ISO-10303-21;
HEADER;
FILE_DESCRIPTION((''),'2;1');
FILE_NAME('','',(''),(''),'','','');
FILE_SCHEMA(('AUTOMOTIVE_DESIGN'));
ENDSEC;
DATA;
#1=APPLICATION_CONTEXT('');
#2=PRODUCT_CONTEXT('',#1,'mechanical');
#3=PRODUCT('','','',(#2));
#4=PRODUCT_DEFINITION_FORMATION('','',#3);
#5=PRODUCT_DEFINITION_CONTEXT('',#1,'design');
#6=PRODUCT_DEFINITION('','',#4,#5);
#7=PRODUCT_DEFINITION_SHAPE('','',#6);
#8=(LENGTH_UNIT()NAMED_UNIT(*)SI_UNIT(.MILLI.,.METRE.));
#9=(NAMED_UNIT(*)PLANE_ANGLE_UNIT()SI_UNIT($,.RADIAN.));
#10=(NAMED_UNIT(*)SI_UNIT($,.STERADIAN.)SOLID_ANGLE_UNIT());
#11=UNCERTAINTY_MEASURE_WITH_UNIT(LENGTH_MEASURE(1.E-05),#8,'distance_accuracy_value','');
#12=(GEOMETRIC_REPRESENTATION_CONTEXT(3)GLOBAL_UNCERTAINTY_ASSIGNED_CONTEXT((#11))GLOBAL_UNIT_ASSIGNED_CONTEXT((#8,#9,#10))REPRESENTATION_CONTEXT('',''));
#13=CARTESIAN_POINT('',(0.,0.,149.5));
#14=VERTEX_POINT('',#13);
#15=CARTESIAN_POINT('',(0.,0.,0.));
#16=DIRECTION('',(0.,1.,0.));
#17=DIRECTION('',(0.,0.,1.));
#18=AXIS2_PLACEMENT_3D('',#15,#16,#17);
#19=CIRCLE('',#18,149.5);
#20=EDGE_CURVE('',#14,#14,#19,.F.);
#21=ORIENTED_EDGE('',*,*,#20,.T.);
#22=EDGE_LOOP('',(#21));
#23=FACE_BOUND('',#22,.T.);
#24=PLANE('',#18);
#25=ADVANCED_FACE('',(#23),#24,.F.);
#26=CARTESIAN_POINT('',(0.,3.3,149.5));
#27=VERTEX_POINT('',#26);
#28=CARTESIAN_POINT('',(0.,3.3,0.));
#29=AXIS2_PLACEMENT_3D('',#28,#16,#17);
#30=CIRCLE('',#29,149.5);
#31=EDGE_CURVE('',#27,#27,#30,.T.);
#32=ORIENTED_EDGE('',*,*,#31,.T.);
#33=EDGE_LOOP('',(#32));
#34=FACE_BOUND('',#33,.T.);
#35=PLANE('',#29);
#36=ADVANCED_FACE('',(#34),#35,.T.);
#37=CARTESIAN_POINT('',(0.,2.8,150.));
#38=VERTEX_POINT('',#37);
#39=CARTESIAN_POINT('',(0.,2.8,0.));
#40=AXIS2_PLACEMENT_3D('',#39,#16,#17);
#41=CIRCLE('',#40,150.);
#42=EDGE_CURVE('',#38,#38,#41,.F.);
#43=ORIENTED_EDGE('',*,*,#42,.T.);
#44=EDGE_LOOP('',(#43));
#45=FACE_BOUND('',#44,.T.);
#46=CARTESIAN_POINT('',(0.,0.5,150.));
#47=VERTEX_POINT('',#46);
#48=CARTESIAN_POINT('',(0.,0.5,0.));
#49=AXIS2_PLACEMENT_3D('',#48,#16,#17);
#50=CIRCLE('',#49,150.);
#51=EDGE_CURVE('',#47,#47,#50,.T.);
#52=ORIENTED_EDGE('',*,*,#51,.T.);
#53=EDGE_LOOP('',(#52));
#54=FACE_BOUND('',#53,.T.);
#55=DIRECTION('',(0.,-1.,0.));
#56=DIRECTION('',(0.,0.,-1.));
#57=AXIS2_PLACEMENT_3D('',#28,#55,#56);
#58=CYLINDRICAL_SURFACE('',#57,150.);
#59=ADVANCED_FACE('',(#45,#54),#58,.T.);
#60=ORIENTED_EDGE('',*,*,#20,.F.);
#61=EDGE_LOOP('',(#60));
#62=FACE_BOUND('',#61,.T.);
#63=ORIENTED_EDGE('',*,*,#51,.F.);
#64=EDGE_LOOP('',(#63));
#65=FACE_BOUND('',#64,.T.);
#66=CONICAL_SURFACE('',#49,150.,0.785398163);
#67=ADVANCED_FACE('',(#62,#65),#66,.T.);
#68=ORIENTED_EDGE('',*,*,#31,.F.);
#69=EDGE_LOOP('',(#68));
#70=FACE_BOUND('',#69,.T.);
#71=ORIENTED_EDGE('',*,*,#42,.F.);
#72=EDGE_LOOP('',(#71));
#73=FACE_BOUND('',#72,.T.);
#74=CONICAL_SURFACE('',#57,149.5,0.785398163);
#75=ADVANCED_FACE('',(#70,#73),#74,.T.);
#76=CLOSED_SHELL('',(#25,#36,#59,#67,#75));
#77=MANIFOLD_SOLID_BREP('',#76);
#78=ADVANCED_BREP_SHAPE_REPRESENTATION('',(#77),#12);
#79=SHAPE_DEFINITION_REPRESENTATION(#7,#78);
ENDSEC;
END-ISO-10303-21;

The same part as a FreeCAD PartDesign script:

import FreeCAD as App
import Part
import Sketcher

V = App.Vector
Q = App.Units.Quantity


def edges_at(feature, points):
    """Names of the edges that pass closest to the given points."""
    edges = feature.Shape.Edges
    near = lambda p: min(range(len(edges)), key=lambda i: edges[i].distToShape(Part.Vertex(*p))[0])
    return sorted({f"Edge{near(p) + 1}" for p in points})

doc = App.newDocument("Part")
params = doc.addObject("Spreadsheet::Sheet", "Params")
for row, (alias, value) in enumerate([
    ("sketch1_diameter", "300 mm"),
    ("pad1_length", "3.3 mm"),
    ("chamfer_size", "0.5 mm"),
], start=1):
    params.set(f"A{row}", alias)
    params.set(f"B{row}", "=" + value)
    params.setAlias(f"B{row}", alias)

body = doc.addObject("PartDesign::Body", "Body")

# Sketch on XZ plane
sketch1 = body.newObject("Sketcher::SketchObject", "Sketch")
sketch1.AttachmentSupport = (doc.getObject("XZ_Plane"), [""])
sketch1.MapMode = "FlatFace"
sketch1.addGeometry(Part.Circle(V(0, 0, 0), V(0, 0, 1), 150), False)
sketch1.addConstraint(Sketcher.Constraint("Coincident", 0, 3, -1, 1))
sketch1.addConstraint(Sketcher.Constraint("Diameter", 0, Q("300 mm")))
sketch1.setExpression("Constraints[1]", "Params.sketch1_diameter")
pad1 = body.newObject("PartDesign::Pad", "Pad")
pad1.Profile = sketch1
pad1.setExpression("Length", "Params.pad1_length")
pad1.Reversed = True
doc.recompute()

chamfer = body.newObject("PartDesign::Chamfer", "Chamfer")
chamfer.Base = (pad1, edges_at(pad1, [(0, 0, -150), (0, 3.3, -150)]))
chamfer.setExpression("Size", "Params.chamfer_size")

doc.recompute()
